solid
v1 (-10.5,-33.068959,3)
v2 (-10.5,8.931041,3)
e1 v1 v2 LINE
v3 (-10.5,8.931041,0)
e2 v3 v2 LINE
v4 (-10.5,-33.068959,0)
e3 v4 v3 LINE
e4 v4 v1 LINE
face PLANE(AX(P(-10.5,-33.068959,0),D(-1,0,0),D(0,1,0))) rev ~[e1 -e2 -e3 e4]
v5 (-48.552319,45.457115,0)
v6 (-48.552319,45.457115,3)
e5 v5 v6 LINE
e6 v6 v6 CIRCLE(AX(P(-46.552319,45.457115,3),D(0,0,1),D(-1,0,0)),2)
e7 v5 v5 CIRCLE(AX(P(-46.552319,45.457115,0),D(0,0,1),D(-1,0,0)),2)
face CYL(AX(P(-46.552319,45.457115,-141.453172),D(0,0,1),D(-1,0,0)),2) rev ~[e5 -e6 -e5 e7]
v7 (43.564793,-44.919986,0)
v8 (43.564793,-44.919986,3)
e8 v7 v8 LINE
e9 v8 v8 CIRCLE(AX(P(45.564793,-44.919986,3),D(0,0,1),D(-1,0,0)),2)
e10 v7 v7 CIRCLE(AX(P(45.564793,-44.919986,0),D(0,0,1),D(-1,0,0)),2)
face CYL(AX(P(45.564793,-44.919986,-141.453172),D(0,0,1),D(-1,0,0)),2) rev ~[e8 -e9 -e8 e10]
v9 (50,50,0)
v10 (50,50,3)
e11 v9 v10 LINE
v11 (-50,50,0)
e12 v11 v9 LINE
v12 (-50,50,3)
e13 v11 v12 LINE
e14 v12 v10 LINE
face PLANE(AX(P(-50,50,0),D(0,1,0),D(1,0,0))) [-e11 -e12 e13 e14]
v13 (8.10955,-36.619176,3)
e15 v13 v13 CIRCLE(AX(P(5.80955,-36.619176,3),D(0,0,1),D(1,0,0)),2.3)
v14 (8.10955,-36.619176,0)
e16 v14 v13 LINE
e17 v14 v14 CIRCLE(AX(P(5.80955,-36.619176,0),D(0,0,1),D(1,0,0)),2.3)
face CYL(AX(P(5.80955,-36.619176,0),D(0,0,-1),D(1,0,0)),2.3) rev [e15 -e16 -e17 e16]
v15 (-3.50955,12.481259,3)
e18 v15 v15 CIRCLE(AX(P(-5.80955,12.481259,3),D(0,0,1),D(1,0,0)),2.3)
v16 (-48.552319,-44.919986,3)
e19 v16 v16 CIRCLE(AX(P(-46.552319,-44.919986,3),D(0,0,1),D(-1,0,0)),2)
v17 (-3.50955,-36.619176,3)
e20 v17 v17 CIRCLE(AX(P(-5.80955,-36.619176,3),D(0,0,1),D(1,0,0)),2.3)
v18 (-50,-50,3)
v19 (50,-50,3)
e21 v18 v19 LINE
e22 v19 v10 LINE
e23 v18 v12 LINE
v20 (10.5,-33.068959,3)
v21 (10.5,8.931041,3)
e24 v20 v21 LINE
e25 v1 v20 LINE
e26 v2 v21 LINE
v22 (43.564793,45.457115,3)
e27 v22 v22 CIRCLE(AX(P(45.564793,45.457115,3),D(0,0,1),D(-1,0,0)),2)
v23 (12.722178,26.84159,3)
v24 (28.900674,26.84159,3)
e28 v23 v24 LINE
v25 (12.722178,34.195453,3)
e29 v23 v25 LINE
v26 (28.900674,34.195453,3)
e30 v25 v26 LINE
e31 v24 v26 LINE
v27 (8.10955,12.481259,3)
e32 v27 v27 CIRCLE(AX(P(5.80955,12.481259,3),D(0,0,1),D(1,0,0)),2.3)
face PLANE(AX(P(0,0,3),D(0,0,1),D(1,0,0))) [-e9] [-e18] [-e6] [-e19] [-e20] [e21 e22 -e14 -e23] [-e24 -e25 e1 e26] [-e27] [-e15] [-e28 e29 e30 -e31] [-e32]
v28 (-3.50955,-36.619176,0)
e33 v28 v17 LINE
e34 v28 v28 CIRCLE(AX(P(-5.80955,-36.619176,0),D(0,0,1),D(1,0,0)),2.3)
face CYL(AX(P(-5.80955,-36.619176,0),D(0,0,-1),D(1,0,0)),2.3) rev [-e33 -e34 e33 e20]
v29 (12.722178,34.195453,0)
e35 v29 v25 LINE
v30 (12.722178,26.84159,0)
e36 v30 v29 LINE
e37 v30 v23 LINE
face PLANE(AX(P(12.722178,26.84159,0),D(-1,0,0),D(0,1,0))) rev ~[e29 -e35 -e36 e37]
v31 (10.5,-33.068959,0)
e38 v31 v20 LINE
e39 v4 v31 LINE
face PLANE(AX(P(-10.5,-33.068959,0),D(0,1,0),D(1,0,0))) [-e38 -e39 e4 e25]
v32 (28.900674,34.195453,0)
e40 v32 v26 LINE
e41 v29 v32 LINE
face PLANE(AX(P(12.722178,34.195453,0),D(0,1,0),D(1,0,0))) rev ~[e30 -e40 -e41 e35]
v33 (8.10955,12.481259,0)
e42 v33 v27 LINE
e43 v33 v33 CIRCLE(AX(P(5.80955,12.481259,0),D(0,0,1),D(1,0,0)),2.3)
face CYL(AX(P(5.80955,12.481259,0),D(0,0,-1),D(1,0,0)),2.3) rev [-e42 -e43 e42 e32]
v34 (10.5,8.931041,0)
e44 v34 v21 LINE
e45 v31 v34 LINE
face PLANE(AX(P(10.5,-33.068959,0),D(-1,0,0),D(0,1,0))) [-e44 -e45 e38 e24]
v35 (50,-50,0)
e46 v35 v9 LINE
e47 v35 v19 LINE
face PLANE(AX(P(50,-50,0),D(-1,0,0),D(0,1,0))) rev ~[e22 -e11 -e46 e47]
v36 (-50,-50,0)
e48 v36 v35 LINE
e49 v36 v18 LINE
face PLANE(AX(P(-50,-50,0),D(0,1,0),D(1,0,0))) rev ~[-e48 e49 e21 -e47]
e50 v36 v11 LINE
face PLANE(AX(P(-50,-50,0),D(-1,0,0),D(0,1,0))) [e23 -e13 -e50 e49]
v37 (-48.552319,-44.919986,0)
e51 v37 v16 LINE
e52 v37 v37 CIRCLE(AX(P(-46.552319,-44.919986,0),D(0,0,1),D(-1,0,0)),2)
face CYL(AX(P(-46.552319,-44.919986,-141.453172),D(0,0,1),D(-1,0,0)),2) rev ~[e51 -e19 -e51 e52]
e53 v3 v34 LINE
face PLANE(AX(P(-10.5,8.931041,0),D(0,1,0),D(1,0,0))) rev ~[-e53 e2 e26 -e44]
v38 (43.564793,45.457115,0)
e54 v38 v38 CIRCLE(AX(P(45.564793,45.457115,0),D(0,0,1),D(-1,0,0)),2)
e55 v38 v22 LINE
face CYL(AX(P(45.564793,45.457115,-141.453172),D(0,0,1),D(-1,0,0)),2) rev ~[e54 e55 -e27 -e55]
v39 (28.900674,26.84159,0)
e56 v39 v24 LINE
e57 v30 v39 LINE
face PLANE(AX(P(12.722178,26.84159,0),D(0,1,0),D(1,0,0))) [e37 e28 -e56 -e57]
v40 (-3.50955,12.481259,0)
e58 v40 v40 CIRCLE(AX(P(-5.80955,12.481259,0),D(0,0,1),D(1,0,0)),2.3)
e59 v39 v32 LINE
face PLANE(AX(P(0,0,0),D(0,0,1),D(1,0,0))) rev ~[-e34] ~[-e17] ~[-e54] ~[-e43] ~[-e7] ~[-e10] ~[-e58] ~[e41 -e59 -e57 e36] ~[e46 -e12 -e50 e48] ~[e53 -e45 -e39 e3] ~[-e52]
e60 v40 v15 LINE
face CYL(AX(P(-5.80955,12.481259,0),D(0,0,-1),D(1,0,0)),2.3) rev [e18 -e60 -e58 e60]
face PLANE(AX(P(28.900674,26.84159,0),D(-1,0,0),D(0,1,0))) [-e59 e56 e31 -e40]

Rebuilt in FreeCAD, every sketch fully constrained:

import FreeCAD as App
import Part
import Sketcher
from FreeCAD import Vector
Q = App.Units.Quantity

doc = App.newDocument("Part")
params = doc.addObject("Spreadsheet::Sheet", "Params")
for row, (alias, value) in enumerate([
    ("sketch1_diameter", "4.6 mm"),
    ("sketch1_width", "100 mm"),
    ("sketch1_width2", "21 mm"),
    ("sketch1_height", "42 mm"),
    ("pad1_length", "3 mm"),
    ("sketch2_diameter", "4 mm"),
    ("hole_diameter", "4 mm"),
], start=1):
    params.set(f"A{row}", alias)
    params.set(f"B{row}", "=" + value)
    params.setAlias(f"B{row}", alias)

body = doc.addObject("PartDesign::Body", "Body")

# Sketch on XY plane
sketch1 = body.newObject("Sketcher::SketchObject", "Sketch")
sketch1.AttachmentSupport = (doc.getObject("XY_Plane"), [""])
sketch1.MapMode = "FlatFace"
sketch1.addGeometry([
    Part.LineSegment(Vector(-50, 50, 0), Vector(-50, -50, 0)),  # 0
    Part.LineSegment(Vector(-50, -50, 0), Vector(50, -50, 0)),  # 1
    Part.LineSegment(Vector(50, -50, 0), Vector(50, 50, 0)),  # 2
    Part.LineSegment(Vector(50, 50, 0), Vector(-50, 50, 0)),  # 3
    Part.Circle(Vector(-5.80955, -36.619176, 0), Vector(0, 0, 1), 2.3),  # 4
    Part.Circle(Vector(5.80955, -36.619176, 0), Vector(0, 0, 1), 2.3),  # 5
    Part.LineSegment(Vector(10.5, -33.068959, 0), Vector(-10.5, -33.068959, 0)),  # 6
    Part.LineSegment(Vector(-10.5, -33.068959, 0), Vector(-10.5, 8.931041, 0)),  # 7
    Part.LineSegment(Vector(-10.5, 8.931041, 0), Vector(10.5, 8.931041, 0)),  # 8
    Part.LineSegment(Vector(10.5, 8.931041, 0), Vector(10.5, -33.068959, 0)),  # 9
    Part.Circle(Vector(-5.80955, 12.481259, 0), Vector(0, 0, 1), 2.3),  # 10
    Part.Circle(Vector(5.80955, 12.481259, 0), Vector(0, 0, 1), 2.3),  # 11
    Part.LineSegment(Vector(28.900674, 26.84159, 0), Vector(12.722178, 26.84159, 0)),  # 12
    Part.LineSegment(Vector(12.722178, 26.84159, 0), Vector(12.722178, 34.195453, 0)),  # 13
    Part.LineSegment(Vector(12.722178, 34.195453, 0), Vector(28.900674, 34.195453, 0)),  # 14
    Part.LineSegment(Vector(28.900674, 34.195453, 0), Vector(28.900674, 26.84159, 0)),  # 15
], False)
sketch1.addConstraint([
    Sketcher.Constraint("Coincident", 0, 2, 1, 1),
    Sketcher.Constraint("Coincident", 1, 2, 2, 1),
    Sketcher.Constraint("Coincident", 2, 2, 3, 1),
    Sketcher.Constraint("Coincident", 3, 2, 0, 1),
    Sketcher.Constraint("Coincident", 6, 2, 7, 1),
    Sketcher.Constraint("Coincident", 7, 2, 8, 1),
    Sketcher.Constraint("Coincident", 8, 2, 9, 1),
    Sketcher.Constraint("Coincident", 9, 2, 6, 1),
    Sketcher.Constraint("Coincident", 12, 2, 13, 1),
    Sketcher.Constraint("Coincident", 13, 2, 14, 1),
    Sketcher.Constraint("Coincident", 14, 2, 15, 1),
    Sketcher.Constraint("Coincident", 15, 2, 12, 1),
    Sketcher.Constraint("Vertical", 0),
    Sketcher.Constraint("Horizontal", 1),
    Sketcher.Constraint("Vertical", 2),
    Sketcher.Constraint("Horizontal", 3),
    Sketcher.Constraint("Horizontal", 6),
    Sketcher.Constraint("Vertical", 7),
    Sketcher.Constraint("Horizontal", 8),
    Sketcher.Constraint("Vertical", 9),
    Sketcher.Constraint("Horizontal", 12),
    Sketcher.Constraint("Vertical", 13),
    Sketcher.Constraint("Horizontal", 14),
    Sketcher.Constraint("Vertical", 15),
    Sketcher.Constraint("Equal", 4, 5),
    Sketcher.Constraint("Equal", 5, 10),
    Sketcher.Constraint("Equal", 10, 11),
    Sketcher.Constraint("Symmetric", 0, 2, 2, 2, -1, 1),
    Sketcher.Constraint("Symmetric", 4, 3, 5, 3, -2),
    Sketcher.Constraint("Symmetric", 10, 3, 11, 3, -2),
    Sketcher.Constraint("Vertical", 4, 3, 10, 3),
    Sketcher.Constraint("Equal", 3, 0),
    Sketcher.Constraint("Diameter", 4, Q("4.6 mm")),
    Sketcher.Constraint("DistanceX", 1, 1, 1, 2, Q("100 mm")),
    Sketcher.Constraint("DistanceX", 6, 2, 6, 1, Q("21 mm")),
    Sketcher.Constraint("DistanceY", 7, 1, 7, 2, Q("42 mm")),
    Sketcher.Constraint("DistanceX", 6, 2, -1, 1, Q("10.5 mm")),
    Sketcher.Constraint("DistanceX", 4, 3, 5, 3, Q("11.6191 mm")),
    Sketcher.Constraint("DistanceX", 12, 2, 12, 1, Q("16.178495 mm")),
    Sketcher.Constraint("DistanceY", 13, 1, 13, 2, Q("7.353863 mm")),
    Sketcher.Constraint("DistanceY", -1, 1, 10, 3, Q("12.481259 mm")),
    Sketcher.Constraint("DistanceY", 6, 2, -1, 1, Q("33.068959 mm")),
    Sketcher.Constraint("DistanceX", -1, 1, 12, 2, Q("12.722178 mm")),
    Sketcher.Constraint("DistanceY", -1, 1, 12, 2, Q("26.84159 mm")),
    Sketcher.Constraint("DistanceY", 4, 3, -1, 1, Q("36.619176 mm")),
])
sketch1.setExpression("Constraints[32]", "Params.sketch1_diameter")
sketch1.setExpression("Constraints[33]", "Params.sketch1_width")
sketch1.setExpression("Constraints[34]", "Params.sketch1_width2")
sketch1.setExpression("Constraints[35]", "Params.sketch1_height")
pad1 = body.newObject("PartDesign::Pad", "Pad")
pad1.Profile = sketch1
pad1.setExpression("Length", "Params.pad1_length")

# Sketch on XY plane
sketch2 = body.newObject("Sketcher::SketchObject", "Sketch001")
sketch2.AttachmentSupport = (doc.getObject("XY_Plane"), [""])
sketch2.MapMode = "FlatFace"
sketch2.addGeometry([
    Part.Circle(Vector(-46.552319, 45.457115, 0), Vector(0, 0, 1), 2),
    Part.Circle(Vector(45.564793, 45.457115, 0), Vector(0, 0, 1), 2),
    Part.Circle(Vector(45.564793, -44.919986, 0), Vector(0, 0, 1), 2),
    Part.Circle(Vector(-46.552319, -44.919986, 0), Vector(0, 0, 1), 2),
], False)
sketch2.addConstraint([
    Sketcher.Constraint("Equal", 0, 1),
    Sketcher.Constraint("Equal", 1, 2),
    Sketcher.Constraint("Equal", 2, 3),
    Sketcher.Constraint("Horizontal", 0, 3, 1, 3),
    Sketcher.Constraint("Horizontal", 2, 3, 3, 3),
    Sketcher.Constraint("Vertical", 1, 3, 2, 3),
    Sketcher.Constraint("Vertical", 0, 3, 3, 3),
    Sketcher.Constraint("Diameter", 0, Q("4 mm")),
    Sketcher.Constraint("DistanceY", 2, 3, 1, 3, Q("90.377102 mm")),
    Sketcher.Constraint("DistanceX", 0, 3, -1, 1, Q("46.552319 mm")),
    Sketcher.Constraint("DistanceY", -1, 1, 0, 3, Q("45.457115 mm")),
    Sketcher.Constraint("DistanceX", -1, 1, 1, 3, Q("45.564793 mm")),
])
sketch2.setExpression("Constraints[7]", "Params.sketch2_diameter")
doc.recompute()
hole = body.newObject("PartDesign::Hole", "Hole")
hole.Profile = sketch2
hole.ThreadType = "None"
hole.setExpression("Diameter", "Params.hole_diameter")
hole.DepthType = "ThroughAll"
hole.Reversed = True

doc.recompute()
